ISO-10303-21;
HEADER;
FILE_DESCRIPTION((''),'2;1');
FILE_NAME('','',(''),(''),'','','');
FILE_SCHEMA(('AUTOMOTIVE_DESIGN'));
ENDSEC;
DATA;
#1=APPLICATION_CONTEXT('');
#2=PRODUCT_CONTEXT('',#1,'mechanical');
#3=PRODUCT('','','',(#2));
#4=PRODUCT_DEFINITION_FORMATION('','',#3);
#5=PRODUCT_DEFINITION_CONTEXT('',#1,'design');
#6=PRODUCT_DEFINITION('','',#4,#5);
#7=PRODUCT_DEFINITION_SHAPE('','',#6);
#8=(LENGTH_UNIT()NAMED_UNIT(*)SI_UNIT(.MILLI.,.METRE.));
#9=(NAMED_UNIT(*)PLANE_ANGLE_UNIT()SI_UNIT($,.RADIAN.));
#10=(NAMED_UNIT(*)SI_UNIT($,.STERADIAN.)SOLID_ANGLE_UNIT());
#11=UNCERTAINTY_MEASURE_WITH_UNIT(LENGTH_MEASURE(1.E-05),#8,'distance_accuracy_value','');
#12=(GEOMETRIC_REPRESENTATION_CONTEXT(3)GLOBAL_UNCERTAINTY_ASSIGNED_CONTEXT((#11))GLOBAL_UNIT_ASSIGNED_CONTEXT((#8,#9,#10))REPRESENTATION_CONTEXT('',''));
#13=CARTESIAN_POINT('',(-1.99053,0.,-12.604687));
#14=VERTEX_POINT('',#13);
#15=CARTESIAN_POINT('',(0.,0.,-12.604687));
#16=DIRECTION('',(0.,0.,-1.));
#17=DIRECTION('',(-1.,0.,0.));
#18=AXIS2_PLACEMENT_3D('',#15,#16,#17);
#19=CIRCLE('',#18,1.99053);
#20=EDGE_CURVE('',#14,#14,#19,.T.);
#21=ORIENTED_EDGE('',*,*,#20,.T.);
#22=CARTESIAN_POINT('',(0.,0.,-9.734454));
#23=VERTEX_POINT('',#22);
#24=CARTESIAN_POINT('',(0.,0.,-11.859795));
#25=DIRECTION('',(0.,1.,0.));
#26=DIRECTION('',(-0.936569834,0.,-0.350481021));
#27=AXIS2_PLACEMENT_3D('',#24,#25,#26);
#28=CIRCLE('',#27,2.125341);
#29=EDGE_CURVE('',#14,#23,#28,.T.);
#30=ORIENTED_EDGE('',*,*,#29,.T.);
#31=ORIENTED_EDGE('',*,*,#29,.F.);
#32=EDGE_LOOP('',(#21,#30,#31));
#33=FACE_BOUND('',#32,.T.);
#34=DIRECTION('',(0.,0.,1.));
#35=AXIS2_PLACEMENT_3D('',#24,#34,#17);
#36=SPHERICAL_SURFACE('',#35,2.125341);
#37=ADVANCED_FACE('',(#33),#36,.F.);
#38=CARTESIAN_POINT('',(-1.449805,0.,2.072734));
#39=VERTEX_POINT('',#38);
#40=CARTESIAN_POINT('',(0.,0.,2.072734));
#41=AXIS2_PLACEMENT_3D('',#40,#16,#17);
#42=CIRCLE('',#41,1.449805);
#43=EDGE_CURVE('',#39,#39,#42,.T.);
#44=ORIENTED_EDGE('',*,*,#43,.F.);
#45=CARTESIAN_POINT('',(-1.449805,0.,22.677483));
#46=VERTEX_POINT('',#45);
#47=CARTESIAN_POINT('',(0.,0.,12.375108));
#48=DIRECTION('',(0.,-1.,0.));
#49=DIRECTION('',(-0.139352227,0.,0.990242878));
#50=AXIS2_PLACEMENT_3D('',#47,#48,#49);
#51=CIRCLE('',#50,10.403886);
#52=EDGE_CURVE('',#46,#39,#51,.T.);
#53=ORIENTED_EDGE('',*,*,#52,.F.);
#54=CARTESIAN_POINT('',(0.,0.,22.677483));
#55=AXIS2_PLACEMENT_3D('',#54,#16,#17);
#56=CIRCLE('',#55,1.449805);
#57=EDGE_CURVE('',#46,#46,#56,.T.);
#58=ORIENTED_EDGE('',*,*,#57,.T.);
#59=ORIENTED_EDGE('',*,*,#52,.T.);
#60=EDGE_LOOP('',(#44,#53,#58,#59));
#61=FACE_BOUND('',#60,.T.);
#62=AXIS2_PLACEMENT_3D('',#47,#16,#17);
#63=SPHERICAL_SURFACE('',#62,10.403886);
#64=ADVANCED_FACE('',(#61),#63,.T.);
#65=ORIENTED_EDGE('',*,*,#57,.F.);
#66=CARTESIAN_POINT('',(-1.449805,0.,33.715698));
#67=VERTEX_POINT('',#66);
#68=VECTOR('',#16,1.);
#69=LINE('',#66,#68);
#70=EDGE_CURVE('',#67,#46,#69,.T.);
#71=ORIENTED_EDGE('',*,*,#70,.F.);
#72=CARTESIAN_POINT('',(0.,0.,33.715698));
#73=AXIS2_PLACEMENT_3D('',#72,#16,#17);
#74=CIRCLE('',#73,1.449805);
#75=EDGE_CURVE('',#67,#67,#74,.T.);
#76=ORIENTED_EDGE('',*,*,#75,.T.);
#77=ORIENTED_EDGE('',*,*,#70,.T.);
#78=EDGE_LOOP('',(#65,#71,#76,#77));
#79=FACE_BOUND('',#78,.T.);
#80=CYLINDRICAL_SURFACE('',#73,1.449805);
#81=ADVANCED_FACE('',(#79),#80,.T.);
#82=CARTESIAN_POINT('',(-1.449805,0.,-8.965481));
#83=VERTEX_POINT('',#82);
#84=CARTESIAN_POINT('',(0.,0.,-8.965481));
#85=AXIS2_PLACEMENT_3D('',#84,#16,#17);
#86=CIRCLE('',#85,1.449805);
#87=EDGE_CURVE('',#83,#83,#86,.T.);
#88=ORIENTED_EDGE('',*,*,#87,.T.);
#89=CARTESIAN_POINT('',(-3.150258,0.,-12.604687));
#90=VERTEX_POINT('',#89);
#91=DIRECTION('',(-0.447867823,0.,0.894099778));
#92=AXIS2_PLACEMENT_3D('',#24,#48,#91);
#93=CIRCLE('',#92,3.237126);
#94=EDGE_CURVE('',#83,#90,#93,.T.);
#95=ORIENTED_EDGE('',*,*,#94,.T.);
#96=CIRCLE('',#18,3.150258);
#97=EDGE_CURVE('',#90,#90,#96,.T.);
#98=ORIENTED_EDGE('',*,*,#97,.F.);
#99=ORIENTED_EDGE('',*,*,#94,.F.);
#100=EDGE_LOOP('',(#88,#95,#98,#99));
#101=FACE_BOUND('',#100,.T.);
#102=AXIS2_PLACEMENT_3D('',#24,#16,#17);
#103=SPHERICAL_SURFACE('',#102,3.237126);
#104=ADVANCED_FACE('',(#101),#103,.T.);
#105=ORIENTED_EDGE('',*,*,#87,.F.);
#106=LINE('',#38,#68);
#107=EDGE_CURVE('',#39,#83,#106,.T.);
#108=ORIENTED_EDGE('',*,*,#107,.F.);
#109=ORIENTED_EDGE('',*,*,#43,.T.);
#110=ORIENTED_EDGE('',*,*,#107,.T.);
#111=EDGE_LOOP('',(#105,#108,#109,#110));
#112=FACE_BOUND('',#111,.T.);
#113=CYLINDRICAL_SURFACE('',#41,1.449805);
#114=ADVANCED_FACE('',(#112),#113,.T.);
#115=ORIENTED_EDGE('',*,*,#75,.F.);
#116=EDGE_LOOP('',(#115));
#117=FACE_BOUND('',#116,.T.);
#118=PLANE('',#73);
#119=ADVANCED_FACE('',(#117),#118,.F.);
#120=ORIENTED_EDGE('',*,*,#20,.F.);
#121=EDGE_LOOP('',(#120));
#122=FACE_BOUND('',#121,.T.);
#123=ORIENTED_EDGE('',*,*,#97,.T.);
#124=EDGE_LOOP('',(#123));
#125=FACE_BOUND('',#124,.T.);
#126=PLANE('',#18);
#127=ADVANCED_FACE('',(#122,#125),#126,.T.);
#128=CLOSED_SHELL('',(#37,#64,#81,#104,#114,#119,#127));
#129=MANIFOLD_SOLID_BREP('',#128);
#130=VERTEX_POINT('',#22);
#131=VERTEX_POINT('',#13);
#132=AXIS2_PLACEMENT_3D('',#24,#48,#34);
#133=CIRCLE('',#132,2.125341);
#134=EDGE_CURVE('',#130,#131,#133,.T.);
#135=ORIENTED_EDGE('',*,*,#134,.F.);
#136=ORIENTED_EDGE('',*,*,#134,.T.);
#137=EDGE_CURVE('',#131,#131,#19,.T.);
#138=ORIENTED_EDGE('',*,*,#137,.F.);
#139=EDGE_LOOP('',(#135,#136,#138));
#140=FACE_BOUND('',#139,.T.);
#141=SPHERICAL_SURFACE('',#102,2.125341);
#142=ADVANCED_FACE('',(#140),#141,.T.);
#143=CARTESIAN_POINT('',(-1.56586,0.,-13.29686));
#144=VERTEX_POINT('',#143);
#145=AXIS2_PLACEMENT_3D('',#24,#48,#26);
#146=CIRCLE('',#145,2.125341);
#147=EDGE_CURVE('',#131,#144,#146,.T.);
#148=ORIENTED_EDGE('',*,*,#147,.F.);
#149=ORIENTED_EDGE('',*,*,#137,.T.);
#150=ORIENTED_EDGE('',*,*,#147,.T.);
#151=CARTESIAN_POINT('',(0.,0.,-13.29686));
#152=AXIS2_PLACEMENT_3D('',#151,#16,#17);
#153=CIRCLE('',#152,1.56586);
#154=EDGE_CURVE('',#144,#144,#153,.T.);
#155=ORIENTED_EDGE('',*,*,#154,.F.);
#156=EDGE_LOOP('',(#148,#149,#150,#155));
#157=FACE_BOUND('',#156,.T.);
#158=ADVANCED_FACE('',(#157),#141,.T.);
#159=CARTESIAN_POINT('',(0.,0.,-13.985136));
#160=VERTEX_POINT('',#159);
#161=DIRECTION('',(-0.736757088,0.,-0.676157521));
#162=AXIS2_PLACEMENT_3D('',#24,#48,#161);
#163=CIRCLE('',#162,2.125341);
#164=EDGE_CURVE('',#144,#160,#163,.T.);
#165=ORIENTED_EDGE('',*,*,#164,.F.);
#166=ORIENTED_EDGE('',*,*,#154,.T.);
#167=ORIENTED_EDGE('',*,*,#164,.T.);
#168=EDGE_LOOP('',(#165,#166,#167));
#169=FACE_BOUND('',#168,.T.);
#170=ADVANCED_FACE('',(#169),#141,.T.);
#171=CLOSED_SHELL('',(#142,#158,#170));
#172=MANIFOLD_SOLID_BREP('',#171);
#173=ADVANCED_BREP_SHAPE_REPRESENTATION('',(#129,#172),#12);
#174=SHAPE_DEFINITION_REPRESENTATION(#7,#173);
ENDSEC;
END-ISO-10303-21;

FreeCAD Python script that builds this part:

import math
import FreeCAD as App
import Part
import Sketcher

doc = App.newDocument("Part")
body = doc.addObject("PartDesign::Body", "Body")

# Sketch on XZ plane
sketch1 = doc.addObject("Sketcher::SketchObject", "Sketch")
body.addObject(sketch1)
sketch1.AttachmentSupport = (doc.XZ_Plane, [""])
sketch1.MapMode = "FlatFace"
sketch1.addGeometry([
    Part.ArcOfCircle(Part.Circle(App.Vector(0, 12.4, 0), App.Vector(0, 0, 1), 10.4), math.radians(98), math.radians(262)),  # 0
    Part.LineSegment(App.Vector(-1.4, 2.1, 0), App.Vector(-1.4, -9, 0)),  # 1
    Part.ArcOfCircle(Part.Circle(App.Vector(0, -11.9, 0), App.Vector(0, 0, 1), 3.2), math.radians(117), math.radians(193)),  # 2
    Part.LineSegment(App.Vector(-3.2, -12.6, 0), App.Vector(-2, -12.6, 0)),  # 3
    Part.ArcOfCircle(Part.Circle(App.Vector(0, -11.9, 0), App.Vector(0, 0, 1), 2.1), math.radians(90), math.radians(201)),  # 4
    Part.LineSegment(App.Vector(0, -9.7, 0), App.Vector(0, 33.7, 0)),  # 5
    Part.LineSegment(App.Vector(0, 33.7, 0), App.Vector(-1.4, 33.7, 0)),  # 6
    Part.LineSegment(App.Vector(-1.4, 33.7, 0), App.Vector(-1.4, 22.7, 0)),  # 7
], False)
sketch1.addConstraint([
    Sketcher.Constraint("Coincident", 0, 2, 1, 1),
    Sketcher.Constraint("Coincident", 1, 2, 2, 1),
    Sketcher.Constraint("Coincident", 2, 2, 3, 1),
    Sketcher.Constraint("Coincident", 3, 2, 4, 2),
    Sketcher.Constraint("Coincident", 4, 1, 5, 1),
    Sketcher.Constraint("Coincident", 5, 2, 6, 1),
    Sketcher.Constraint("Coincident", 6, 2, 7, 1),
    Sketcher.Constraint("Coincident", 7, 2, 0, 1),
    Sketcher.Constraint("Vertical", 1),
    Sketcher.Constraint("Horizontal", 3),
    Sketcher.Constraint("Vertical", 5),
    Sketcher.Constraint("Horizontal", 6),
    Sketcher.Constraint("Vertical", 7),
    Sketcher.Constraint("Coincident", 4, 3, 2, 3),
    Sketcher.Constraint("PointOnObject", 0, 3, -2),
    Sketcher.Constraint("PointOnObject", 2, 3, -2),
    Sketcher.Constraint("PointOnObject", 4, 1, -2),
    Sketcher.Constraint("Vertical", 1, 2, 6, 2),
    Sketcher.Constraint("Equal", 1, 7),
    Sketcher.Constraint("Radius", 4, 2.125341),
    Sketcher.Constraint("Radius", 0, 10.403886),
    Sketcher.Constraint("Radius", 2, 3.237126),
    Sketcher.Constraint("DistanceY", 5, 1, 5, 2, 43.450152),
    Sketcher.Constraint("DistanceX", 3, 1, 3, 2, 1.159728),
    Sketcher.Constraint("DistanceX", 6, 2, 6, 1, 1.449805),
    Sketcher.Constraint("DistanceY", -1, 1, 0, 3, 12.375108),
])
revolution = doc.addObject("PartDesign::Revolution", "Revolution")
body.addObject(revolution)
revolution.Profile = sketch1
revolution.ReferenceAxis = (sketch1, ["V_Axis"])
revolution.Angle = 360
body2 = doc.addObject("PartDesign::Body", "Body001")

# Sketch on XZ plane
sketch2 = doc.addObject("Sketcher::SketchObject", "Sketch001")
body2.addObject(sketch2)
sketch2.AttachmentSupport = (doc.getObject("XZ_Plane001"), [""])
sketch2.MapMode = "FlatFace"
sketch2.addGeometry([
    Part.ArcOfCircle(Part.Circle(App.Vector(0, -11.9, 0), App.Vector(0, 0, 1), 2.1), math.radians(-159), math.radians(-137)),
    Part.ArcOfCircle(Part.Circle(App.Vector(0, -11.9, 0), App.Vector(0, 0, 1), 2.1), math.radians(-137), math.radians(-90)),
    Part.LineSegment(App.Vector(0, -14, 0), App.Vector(0, -9.7, 0)),
    Part.ArcOfCircle(Part.Circle(App.Vector(0, -11.9, 0), App.Vector(0, 0, 1), 2.1), math.radians(90), math.radians(201)),
], False)
sketch2.addConstraint([
    Sketcher.Constraint("Tangent", 0, 2, 1, 1),
    Sketcher.Constraint("Coincident", 1, 2, 2, 1),
    Sketcher.Constraint("Coincident", 2, 2, 3, 1),
    Sketcher.Constraint("Tangent", 3, 2, 0, 1),
    Sketcher.Constraint("Vertical", 2),
    Sketcher.Constraint("Equal", 0, 1),
    Sketcher.Constraint("Equal", 1, 3),
    Sketcher.Constraint("PointOnObject", 0, 3, -2),
    Sketcher.Constraint("PointOnObject", 1, 2, -2),
    Sketcher.Constraint("Radius", 0, 2.125341),
    Sketcher.Constraint("DistanceX", 0, 2, -1, 1, 1.56586),
    Sketcher.Constraint("DistanceY", 0, 2, -1, 1, 13.29686),
    Sketcher.Constraint("DistanceX", 3, 2, -1, 1, 1.99053),
])
revolution2 = doc.addObject("PartDesign::Revolution", "Revolution001")
body2.addObject(revolution2)
revolution2.Profile = sketch2
revolution2.ReferenceAxis = (sketch2, ["V_Axis"])
revolution2.Angle = 360

doc.recompute()
